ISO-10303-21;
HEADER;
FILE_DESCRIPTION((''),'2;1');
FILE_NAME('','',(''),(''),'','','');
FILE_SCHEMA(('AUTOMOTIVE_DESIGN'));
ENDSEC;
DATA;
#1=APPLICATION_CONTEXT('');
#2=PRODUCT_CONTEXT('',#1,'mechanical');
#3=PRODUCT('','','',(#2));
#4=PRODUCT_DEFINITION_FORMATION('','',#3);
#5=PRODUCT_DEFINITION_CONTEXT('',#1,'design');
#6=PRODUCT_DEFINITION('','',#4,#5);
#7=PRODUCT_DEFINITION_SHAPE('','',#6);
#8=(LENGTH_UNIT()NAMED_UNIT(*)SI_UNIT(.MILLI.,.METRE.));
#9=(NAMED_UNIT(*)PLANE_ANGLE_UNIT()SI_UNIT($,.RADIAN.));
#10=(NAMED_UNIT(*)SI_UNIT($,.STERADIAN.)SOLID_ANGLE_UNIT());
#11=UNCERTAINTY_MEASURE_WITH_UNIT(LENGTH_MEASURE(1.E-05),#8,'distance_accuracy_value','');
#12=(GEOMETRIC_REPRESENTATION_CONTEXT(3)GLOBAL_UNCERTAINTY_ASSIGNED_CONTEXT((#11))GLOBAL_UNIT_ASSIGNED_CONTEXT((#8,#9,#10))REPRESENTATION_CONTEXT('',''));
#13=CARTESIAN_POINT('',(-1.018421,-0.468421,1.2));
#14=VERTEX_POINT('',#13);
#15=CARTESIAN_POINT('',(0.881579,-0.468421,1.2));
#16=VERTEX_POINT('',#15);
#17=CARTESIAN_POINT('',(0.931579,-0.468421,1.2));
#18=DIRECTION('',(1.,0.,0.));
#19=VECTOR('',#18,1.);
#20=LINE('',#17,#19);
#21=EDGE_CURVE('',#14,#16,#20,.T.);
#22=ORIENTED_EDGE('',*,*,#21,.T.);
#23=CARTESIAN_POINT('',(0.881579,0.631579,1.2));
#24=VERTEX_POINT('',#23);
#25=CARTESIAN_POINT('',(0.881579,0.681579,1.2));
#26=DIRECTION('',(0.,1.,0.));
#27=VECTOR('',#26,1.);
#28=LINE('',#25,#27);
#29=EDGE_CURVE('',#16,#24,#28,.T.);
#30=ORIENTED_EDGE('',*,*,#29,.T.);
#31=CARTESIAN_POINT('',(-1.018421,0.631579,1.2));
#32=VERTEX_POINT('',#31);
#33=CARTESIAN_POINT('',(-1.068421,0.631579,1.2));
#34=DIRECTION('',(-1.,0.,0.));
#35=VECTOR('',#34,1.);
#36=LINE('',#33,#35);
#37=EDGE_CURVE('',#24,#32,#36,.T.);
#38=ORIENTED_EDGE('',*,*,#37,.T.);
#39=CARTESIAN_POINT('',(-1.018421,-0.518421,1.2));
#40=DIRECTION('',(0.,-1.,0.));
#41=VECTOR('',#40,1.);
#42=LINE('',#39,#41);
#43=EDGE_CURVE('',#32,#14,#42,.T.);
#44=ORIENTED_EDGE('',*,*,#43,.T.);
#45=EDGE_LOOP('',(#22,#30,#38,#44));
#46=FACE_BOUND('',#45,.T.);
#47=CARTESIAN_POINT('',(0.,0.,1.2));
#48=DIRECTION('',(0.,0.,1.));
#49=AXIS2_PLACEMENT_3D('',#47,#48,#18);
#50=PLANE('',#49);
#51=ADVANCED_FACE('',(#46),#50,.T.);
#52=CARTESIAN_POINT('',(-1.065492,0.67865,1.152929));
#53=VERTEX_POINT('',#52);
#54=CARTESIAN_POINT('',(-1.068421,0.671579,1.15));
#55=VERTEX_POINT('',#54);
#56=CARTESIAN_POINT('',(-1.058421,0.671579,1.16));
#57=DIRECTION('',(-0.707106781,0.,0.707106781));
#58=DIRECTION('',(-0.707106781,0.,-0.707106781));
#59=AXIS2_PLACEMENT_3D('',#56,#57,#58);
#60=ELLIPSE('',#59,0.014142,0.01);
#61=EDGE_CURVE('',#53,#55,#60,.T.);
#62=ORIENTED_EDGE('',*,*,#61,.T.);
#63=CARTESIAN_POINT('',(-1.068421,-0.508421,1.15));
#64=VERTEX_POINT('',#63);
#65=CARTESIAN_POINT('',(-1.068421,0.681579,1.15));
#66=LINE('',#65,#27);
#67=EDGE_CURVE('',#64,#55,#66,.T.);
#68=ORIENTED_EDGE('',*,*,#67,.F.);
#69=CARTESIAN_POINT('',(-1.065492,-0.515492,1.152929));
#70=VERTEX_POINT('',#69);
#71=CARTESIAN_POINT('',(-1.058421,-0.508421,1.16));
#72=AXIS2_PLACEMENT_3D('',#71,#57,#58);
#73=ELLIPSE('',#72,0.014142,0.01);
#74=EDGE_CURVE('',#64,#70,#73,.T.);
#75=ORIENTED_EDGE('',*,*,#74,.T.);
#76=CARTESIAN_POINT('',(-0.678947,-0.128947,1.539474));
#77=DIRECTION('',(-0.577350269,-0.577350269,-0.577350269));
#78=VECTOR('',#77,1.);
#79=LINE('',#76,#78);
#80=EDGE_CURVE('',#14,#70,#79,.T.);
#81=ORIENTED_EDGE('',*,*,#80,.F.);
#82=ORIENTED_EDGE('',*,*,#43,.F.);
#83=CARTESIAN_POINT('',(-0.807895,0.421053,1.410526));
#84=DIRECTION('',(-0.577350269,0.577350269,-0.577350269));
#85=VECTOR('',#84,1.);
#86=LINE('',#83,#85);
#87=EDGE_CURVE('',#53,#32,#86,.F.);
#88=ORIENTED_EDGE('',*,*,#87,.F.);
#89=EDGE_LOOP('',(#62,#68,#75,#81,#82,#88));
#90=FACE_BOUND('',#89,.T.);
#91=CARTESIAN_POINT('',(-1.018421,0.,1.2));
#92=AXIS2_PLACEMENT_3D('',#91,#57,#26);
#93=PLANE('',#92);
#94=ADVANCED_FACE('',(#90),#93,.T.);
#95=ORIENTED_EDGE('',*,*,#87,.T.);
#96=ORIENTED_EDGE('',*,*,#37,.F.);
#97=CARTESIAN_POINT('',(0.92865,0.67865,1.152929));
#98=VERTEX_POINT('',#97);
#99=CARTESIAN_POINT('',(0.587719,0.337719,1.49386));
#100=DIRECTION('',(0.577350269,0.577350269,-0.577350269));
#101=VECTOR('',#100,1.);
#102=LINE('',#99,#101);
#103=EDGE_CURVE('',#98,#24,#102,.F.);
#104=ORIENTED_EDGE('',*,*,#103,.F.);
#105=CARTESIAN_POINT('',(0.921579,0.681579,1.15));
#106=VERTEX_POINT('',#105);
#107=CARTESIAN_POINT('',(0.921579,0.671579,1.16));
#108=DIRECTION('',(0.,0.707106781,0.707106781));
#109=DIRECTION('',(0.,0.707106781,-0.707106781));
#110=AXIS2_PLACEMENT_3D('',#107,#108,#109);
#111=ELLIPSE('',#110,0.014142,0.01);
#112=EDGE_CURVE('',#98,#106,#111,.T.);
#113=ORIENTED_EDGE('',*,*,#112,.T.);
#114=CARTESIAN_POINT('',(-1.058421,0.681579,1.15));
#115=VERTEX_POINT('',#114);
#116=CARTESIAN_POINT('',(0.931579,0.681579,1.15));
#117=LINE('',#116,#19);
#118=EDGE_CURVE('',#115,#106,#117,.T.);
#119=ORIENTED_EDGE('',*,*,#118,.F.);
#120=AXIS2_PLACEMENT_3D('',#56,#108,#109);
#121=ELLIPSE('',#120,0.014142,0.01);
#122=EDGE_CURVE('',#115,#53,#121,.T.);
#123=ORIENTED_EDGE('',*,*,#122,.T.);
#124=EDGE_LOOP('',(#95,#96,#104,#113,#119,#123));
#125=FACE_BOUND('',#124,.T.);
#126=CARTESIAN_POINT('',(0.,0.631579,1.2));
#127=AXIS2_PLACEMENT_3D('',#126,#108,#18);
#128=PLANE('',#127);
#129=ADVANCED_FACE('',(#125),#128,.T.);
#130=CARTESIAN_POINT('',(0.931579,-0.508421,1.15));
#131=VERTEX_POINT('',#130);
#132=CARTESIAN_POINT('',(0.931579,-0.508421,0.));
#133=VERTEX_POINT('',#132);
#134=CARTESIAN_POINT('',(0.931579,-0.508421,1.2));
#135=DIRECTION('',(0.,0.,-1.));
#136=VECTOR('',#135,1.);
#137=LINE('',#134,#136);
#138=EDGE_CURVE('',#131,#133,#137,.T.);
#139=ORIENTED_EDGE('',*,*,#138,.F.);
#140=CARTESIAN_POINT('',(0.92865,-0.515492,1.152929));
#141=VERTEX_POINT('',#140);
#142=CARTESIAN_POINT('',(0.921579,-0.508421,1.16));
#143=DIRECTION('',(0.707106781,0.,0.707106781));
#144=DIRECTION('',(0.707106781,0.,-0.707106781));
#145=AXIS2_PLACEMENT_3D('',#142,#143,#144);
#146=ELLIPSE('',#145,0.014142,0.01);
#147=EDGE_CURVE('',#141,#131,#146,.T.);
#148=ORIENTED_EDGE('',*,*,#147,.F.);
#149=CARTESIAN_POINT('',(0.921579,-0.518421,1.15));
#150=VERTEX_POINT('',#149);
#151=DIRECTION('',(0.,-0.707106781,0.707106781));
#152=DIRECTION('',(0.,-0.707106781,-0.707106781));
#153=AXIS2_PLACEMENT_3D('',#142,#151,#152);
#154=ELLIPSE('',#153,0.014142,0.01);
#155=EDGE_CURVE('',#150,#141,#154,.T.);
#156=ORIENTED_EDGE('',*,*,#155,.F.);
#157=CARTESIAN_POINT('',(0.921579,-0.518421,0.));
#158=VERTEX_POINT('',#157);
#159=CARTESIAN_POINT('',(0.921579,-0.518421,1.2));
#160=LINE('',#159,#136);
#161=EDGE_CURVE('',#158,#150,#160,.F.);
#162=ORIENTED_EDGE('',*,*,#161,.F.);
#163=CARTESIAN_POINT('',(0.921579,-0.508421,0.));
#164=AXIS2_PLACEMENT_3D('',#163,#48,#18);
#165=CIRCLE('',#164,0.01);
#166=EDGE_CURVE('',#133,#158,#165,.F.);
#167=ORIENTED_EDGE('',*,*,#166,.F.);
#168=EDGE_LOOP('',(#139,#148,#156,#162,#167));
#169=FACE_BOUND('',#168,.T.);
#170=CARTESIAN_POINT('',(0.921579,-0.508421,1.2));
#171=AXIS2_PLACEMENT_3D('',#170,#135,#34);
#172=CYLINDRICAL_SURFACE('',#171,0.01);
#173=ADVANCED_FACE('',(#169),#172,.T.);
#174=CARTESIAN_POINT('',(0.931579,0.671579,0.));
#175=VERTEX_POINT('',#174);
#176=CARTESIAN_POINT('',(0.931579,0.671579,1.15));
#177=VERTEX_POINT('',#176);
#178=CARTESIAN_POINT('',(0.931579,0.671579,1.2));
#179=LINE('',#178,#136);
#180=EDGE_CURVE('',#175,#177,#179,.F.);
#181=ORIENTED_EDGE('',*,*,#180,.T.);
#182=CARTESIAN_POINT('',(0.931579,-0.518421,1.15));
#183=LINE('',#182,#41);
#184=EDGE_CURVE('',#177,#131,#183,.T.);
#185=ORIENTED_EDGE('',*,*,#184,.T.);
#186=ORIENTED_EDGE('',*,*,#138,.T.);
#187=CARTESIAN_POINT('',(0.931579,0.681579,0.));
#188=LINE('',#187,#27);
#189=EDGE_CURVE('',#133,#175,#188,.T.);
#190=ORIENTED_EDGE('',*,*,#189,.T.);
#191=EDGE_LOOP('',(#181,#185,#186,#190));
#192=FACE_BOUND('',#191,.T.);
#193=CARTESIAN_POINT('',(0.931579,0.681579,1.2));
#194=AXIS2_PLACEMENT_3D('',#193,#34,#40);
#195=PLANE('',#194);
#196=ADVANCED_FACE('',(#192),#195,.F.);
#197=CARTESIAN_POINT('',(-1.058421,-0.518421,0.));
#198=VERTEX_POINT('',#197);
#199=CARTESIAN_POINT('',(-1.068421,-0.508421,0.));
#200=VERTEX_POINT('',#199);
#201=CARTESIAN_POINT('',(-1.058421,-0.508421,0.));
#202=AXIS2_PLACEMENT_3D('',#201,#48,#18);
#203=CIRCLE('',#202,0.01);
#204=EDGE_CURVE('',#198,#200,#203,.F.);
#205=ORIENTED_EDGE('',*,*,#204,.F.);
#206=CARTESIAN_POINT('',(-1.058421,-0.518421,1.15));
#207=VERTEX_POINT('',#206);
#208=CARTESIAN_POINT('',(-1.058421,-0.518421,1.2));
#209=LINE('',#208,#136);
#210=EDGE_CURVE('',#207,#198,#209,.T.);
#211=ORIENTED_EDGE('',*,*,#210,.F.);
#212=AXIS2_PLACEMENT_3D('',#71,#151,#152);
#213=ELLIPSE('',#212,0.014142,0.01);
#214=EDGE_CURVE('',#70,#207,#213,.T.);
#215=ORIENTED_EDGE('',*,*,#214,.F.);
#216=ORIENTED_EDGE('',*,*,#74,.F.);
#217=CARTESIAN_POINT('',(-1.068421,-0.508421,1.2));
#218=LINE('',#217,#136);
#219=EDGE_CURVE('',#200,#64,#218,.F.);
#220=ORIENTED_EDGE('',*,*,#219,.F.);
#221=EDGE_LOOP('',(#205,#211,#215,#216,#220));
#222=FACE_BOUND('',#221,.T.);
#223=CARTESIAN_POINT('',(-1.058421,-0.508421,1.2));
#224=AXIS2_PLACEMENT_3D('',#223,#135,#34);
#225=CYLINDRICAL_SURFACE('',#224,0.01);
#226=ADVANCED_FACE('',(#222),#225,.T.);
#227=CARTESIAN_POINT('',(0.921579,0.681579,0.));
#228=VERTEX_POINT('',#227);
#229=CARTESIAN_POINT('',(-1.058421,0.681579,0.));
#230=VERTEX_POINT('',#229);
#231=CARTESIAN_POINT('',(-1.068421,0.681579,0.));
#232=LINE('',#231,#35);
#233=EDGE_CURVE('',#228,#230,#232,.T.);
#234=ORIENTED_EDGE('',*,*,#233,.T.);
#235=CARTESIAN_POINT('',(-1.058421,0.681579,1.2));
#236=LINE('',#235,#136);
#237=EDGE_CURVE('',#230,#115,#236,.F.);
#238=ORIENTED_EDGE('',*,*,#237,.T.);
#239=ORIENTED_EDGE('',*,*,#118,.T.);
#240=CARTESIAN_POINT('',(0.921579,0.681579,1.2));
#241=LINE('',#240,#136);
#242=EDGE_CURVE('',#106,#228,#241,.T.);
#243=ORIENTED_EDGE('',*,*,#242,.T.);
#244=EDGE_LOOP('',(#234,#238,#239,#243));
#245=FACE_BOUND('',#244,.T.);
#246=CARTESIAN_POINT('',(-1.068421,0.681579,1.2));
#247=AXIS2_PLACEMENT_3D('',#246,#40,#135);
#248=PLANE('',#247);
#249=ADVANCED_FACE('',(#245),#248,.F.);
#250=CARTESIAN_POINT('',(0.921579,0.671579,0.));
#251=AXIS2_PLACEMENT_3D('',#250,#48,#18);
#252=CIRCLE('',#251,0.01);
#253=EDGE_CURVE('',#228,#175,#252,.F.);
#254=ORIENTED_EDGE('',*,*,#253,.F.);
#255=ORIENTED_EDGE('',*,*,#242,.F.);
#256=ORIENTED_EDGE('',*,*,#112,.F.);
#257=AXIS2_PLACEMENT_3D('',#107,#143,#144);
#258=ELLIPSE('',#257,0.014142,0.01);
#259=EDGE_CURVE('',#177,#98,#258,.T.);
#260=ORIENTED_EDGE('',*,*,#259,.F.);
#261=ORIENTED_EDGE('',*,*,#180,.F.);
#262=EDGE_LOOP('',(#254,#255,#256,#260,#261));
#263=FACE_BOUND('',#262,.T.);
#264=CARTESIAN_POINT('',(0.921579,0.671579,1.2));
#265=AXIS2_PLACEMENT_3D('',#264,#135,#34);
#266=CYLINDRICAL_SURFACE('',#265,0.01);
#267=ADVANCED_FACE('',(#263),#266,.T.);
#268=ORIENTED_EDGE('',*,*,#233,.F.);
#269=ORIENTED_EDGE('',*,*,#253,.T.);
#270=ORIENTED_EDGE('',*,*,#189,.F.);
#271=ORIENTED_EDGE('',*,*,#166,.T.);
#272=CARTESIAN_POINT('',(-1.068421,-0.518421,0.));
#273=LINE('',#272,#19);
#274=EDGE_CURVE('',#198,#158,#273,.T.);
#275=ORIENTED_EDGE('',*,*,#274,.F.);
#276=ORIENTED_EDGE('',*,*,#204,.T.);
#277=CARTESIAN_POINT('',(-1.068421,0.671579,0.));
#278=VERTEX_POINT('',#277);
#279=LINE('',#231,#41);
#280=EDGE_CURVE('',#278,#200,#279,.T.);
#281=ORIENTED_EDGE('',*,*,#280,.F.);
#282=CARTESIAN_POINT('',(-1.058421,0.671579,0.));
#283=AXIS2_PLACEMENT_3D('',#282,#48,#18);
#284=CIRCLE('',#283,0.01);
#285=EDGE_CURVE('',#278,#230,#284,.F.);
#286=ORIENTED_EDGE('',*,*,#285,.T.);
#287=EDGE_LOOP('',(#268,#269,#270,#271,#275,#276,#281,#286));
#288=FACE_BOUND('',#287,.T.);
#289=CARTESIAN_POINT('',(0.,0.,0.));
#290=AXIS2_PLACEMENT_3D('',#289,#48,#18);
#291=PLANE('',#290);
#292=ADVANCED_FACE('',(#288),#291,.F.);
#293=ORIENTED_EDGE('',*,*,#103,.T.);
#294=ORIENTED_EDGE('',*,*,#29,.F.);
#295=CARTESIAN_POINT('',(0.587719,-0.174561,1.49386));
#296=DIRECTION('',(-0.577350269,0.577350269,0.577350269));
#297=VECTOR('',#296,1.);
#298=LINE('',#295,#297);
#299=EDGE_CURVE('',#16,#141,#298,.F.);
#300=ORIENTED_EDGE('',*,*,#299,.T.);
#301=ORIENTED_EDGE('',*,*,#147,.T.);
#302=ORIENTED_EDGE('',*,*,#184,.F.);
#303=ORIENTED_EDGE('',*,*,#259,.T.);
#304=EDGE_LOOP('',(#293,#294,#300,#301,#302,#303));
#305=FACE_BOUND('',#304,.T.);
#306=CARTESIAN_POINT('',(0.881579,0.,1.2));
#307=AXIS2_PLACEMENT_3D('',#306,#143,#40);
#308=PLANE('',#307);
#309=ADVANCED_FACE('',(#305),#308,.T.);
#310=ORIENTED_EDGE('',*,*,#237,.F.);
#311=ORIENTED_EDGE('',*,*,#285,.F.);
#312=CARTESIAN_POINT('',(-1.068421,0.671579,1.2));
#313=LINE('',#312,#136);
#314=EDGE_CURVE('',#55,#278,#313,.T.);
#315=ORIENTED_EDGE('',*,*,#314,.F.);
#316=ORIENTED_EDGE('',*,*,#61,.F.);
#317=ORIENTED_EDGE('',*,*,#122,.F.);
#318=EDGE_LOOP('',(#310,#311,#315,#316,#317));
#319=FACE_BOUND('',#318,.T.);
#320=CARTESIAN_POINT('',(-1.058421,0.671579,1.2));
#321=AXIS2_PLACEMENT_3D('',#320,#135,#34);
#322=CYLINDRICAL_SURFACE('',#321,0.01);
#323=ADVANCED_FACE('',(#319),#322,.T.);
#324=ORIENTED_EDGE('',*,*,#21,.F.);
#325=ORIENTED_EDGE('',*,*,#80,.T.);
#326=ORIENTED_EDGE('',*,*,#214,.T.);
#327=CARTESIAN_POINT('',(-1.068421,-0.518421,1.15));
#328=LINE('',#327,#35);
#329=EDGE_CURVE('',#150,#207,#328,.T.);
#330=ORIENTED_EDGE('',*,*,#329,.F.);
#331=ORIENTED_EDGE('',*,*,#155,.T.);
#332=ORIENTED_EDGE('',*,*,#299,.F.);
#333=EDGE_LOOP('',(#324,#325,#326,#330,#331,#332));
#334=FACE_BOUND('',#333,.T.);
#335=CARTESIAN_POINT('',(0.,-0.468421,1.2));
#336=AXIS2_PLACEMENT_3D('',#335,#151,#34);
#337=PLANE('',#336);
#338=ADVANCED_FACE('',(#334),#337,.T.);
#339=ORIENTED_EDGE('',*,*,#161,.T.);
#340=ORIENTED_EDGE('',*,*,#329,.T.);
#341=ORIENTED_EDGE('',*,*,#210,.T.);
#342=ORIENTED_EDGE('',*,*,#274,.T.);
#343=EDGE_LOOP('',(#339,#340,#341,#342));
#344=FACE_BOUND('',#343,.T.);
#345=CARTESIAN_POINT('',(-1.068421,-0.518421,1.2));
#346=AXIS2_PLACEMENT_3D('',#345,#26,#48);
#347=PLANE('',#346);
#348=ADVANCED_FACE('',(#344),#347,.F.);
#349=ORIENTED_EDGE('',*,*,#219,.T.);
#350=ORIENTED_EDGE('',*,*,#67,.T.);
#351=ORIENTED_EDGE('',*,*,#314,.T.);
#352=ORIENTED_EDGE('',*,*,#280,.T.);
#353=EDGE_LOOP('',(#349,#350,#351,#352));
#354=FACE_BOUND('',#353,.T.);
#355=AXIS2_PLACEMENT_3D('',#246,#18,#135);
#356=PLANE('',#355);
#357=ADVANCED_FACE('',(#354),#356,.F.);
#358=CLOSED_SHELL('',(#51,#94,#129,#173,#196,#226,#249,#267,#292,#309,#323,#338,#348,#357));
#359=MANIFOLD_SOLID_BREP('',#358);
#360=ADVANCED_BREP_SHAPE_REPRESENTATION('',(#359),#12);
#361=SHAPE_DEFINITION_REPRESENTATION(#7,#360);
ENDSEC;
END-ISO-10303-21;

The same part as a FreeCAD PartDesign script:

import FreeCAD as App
import Part
import Sketcher

V = App.Vector


def edges_at(feature, points):
    """Names of the edges that pass closest to the given points."""
    edges = feature.Shape.Edges
    near = lambda p: min(range(len(edges)), key=lambda i: edges[i].distToShape(Part.Vertex(*p))[0])
    return sorted({f"Edge{near(p) + 1}" for p in points})


def add_polygon(sketch, points):
    """Adds a closed chain of lines whose ends are joined by coincident constraints."""
    first, n = sketch.GeometryCount, len(points)
    for a, b in zip(points, points[1:] + points[:1]):
        sketch.addGeometry(Part.LineSegment(App.Vector(*a, 0), App.Vector(*b, 0)), False)
    for i in range(n):
        sketch.addConstraint(Sketcher.Constraint("Coincident", first + i, 2, first + (i + 1) % n, 1))

doc = App.newDocument("Part")
body = doc.addObject("PartDesign::Body", "Body")

sketch1 = doc.addObject("Sketcher::SketchObject", "Sketch")
body.addObject(sketch1)
sketch1.AttachmentSupport = (doc.XY_Plane, [""])
sketch1.MapMode = "FlatFace"
add_polygon(sketch1, [(-1.068421, 0.681579), (-1.068421, -0.518421), (0.931579, -0.518421), (0.931579, 0.681579)])
sketch1.addConstraint([
    Sketcher.Constraint("Vertical", 0),
    Sketcher.Constraint("Horizontal", 1),
    Sketcher.Constraint("Vertical", 2),
    Sketcher.Constraint("Horizontal", 3),
    Sketcher.Constraint("DistanceX", 1, 1, 1, 2, 2.0),
    Sketcher.Constraint("DistanceY", 0, 2, 0, 1, 1.2),
    Sketcher.Constraint("DistanceX", 0, 2, -1, 1, 1.068421),
    Sketcher.Constraint("DistanceY", 0, 2, -1, 1, 0.518421),
])
pad1 = doc.addObject("PartDesign::Pad", "Pad")
body.addObject(pad1)
pad1.Profile = sketch1
pad1.Length = 1.2
doc.recompute()

chamfer = doc.addObject("PartDesign::Chamfer", "Chamfer")
body.addObject(chamfer)
chamfer.Base = (pad1, edges_at(pad1, [
    (0.932, 0.082, 1.2),
    (-0.068, 0.682, 1.2),
    (-1.068, 0.082, 1.2),
    (-0.068, -0.518, 1.2),
]))
chamfer.Size = 0.05
doc.recompute()

fillet = doc.addObject("PartDesign::Fillet", "Fillet")
body.addObject(fillet)
fillet.Base = (chamfer, edges_at(chamfer, [
    (0.932, 0.682, 0.575),
    (0.932, -0.518, 0.575),
    (-1.068, 0.682, 0.575),
    (-1.068, -0.518, 0.575),
]))
fillet.Radius = 0.01

doc.recompute()
